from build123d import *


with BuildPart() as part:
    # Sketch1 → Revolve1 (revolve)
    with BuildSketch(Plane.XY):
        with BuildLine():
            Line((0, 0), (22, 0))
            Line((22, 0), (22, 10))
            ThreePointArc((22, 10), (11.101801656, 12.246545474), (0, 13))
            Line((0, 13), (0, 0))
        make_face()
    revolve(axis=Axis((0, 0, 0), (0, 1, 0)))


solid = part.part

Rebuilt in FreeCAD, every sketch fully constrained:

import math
import FreeCAD as App
import Part
import Sketcher

doc = App.newDocument("Part")
body = doc.addObject("PartDesign::Body", "Body")

sketch1 = body.newObject("Sketcher::SketchObject", "Sketch")
sketch1.AttachmentSupport = (doc.getObject("XY_Plane"), [""])
sketch1.MapMode = "FlatFace"
sketch1.addGeometry([
    Part.LineSegment(App.Vector(0, 0, 0), App.Vector(22, 0, 0)),
    Part.LineSegment(App.Vector(22, 0, 0), App.Vector(22, 10, 0)),
    Part.ArcOfCircle(Part.Circle(App.Vector(0, -69, 0), App.Vector(0, 0, 1), 82), math.radians(74.47), math.radians(90)),
    Part.LineSegment(App.Vector(0, 13, 0), App.Vector(0, 0, 0)),
], False)
sketch1.addConstraint([
    Sketcher.Constraint("Coincident", 0, 2, 1, 1),
    Sketcher.Constraint("Coincident", 1, 2, 2, 1),
    Sketcher.Constraint("Coincident", 2, 2, 3, 1),
    Sketcher.Constraint("Coincident", 3, 2, 0, 1),
    Sketcher.Constraint("Horizontal", 0),
    Sketcher.Constraint("Vertical", 1),
    Sketcher.Constraint("Vertical", 3),
    Sketcher.Constraint("Coincident", 3, 2, -1, 1),
    Sketcher.Constraint("PointOnObject", 2, 3, -2),
    Sketcher.Constraint("DistanceX", 0, 1, 0, 2, 22.0),
    Sketcher.Constraint("DistanceY", 1, 1, 1, 2, 10.0),
    Sketcher.Constraint("DistanceY", 3, 2, 3, 1, 13.0),
])
revolution = body.newObject("PartDesign::Revolution", "Revolution")
revolution.Profile = sketch1
revolution.ReferenceAxis = (sketch1, ["V_Axis"])
revolution.Angle = 360

doc.recompute()
